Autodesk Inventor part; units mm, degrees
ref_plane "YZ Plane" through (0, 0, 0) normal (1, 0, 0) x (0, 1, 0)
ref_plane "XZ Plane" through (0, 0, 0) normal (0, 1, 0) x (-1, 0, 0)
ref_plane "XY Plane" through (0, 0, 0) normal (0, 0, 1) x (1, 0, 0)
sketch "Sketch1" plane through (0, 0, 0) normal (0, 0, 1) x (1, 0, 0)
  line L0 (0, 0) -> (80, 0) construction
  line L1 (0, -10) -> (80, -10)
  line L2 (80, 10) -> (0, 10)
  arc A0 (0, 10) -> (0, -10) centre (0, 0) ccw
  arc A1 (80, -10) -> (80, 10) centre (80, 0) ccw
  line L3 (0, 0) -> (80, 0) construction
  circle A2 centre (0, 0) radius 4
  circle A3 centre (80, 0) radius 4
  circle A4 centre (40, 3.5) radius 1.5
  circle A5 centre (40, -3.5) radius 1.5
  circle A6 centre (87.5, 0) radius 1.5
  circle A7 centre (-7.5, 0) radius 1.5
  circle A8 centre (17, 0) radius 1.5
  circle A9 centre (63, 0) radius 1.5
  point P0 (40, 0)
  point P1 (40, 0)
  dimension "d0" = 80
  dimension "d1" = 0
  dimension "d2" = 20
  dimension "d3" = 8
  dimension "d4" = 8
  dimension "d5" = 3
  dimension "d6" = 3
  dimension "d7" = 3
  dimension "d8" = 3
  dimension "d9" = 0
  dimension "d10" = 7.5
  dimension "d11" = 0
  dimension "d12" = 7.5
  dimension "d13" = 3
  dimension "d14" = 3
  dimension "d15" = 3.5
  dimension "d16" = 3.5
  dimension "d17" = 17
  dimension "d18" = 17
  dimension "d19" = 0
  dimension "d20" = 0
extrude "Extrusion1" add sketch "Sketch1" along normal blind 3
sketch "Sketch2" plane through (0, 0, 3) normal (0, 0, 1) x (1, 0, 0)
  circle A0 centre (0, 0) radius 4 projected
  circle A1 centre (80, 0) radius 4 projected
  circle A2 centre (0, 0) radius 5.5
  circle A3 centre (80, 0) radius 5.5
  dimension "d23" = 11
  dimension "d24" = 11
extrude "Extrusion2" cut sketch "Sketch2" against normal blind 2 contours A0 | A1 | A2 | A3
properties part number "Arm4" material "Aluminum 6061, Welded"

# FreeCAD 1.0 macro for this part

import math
import FreeCAD as App
import Part
import Sketcher

V = App.Vector
Q = App.Units.Quantity

doc = App.newDocument("Part")
body = doc.addObject("PartDesign::Body", "Body")

sketch1 = doc.addObject("Sketcher::SketchObject", "Sketch")
body.addObject(sketch1)
sketch1.AttachmentSupport = (doc.XY_Plane, [""])
sketch1.MapMode = "FlatFace"
sketch1.addGeometry([
    Part.ArcOfCircle(Part.Circle(V(0, 0, 0), V(0, 0, 1), 10), math.radians(90), math.radians(270)),
    Part.LineSegment(V(0, -10, 0), V(80, -10, 0)),
    Part.ArcOfCircle(Part.Circle(V(80, 0, 0), V(0, 0, 1), 10), math.radians(-90), math.radians(90)),
    Part.LineSegment(V(80, 10, 0), V(0, 10, 0)),
    Part.Circle(V(40, -3.5, 0), V(0, 0, 1), 1.5),
    Part.Circle(V(-7.5, 0, 0), V(0, 0, 1), 1.5),
    Part.Circle(V(0, 0, 0), V(0, 0, 1), 4),
    Part.Circle(V(17, 0, 0), V(0, 0, 1), 1.5),
    Part.Circle(V(63, 0, 0), V(0, 0, 1), 1.5),
    Part.Circle(V(40, 3.5, 0), V(0, 0, 1), 1.5),
    Part.Circle(V(80, 0, 0), V(0, 0, 1), 4),
    Part.Circle(V(87.5, 0, 0), V(0, 0, 1), 1.5),
], False)
sketch1.addConstraint([
    Sketcher.Constraint("Tangent", 0, 2, 1, 1),
    Sketcher.Constraint("Tangent", 1, 2, 2, 1),
    Sketcher.Constraint("Tangent", 2, 2, 3, 1),
    Sketcher.Constraint("Tangent", 3, 2, 0, 1),
    Sketcher.Constraint("Horizontal", 1),
    Sketcher.Constraint("Horizontal", 3),
    Sketcher.Constraint("Coincident", 0, 3, -1, 1),
    Sketcher.Constraint("Coincident", 6, 3, -1, 1),
    Sketcher.Constraint("Coincident", 10, 3, 2, 3),
    Sketcher.Constraint("Equal", 4, 5),
    Sketcher.Constraint("Equal", 5, 7),
    Sketcher.Constraint("Equal", 7, 8),
    Sketcher.Constraint("Equal", 8, 9),
    Sketcher.Constraint("Equal", 6, 10),
    Sketcher.Constraint("Equal", 9, 11),
    Sketcher.Constraint("Symmetric", 4, 3, 9, 3, -1),
    Sketcher.Constraint("PointOnObject", 5, 3, -1),
    Sketcher.Constraint("PointOnObject", 7, 3, -1),
    Sketcher.Constraint("PointOnObject", 8, 3, -1),
    Sketcher.Constraint("PointOnObject", 11, 3, -1),
    Sketcher.Constraint("Diameter", 4, Q("3 mm")),
    Sketcher.Constraint("Diameter", 6, Q("8 mm")),
    Sketcher.Constraint("Radius", 0, Q("10 mm")),
    Sketcher.Constraint("DistanceX", 1, 1, 1, 2, Q("80 mm")),
    Sketcher.Constraint("DistanceX", -1, 1, 7, 3, Q("17 mm")),
    Sketcher.Constraint("DistanceX", 8, 3, 2, 3, Q("17 mm")),
    Sketcher.Constraint("DistanceY", 4, 3, -1, 1, Q("3.5 mm")),
    Sketcher.Constraint("DistanceX", 5, 3, -1, 1, Q("7.5 mm")),
    Sketcher.Constraint("DistanceX", 2, 3, 11, 3, Q("7.5 mm")),
    Sketcher.Constraint("DistanceX", -1, 1, 4, 3, Q("40 mm")),
])
pad1 = doc.addObject("PartDesign::Pad", "Pad")
body.addObject(pad1)
pad1.Profile = sketch1
pad1.Length = 3

sketch2 = doc.addObject("Sketcher::SketchObject", "Sketch001")
body.addObject(sketch2)
sketch2.AttachmentSupport = (doc.XY_Plane, [""])
sketch2.MapMode = "FlatFace"
sketch2.AttachmentOffset = App.Placement(V(0, 0, 3), App.Rotation())
sketch2.addGeometry([
    Part.Circle(V(0, 0, 0), V(0, 0, 1), 6),
    Part.Circle(V(80, 0, 0), V(0, 0, 1), 6),
], False)
sketch2.addConstraint([
    Sketcher.Constraint("Coincident", 0, 3, -1, 1),
    Sketcher.Constraint("Equal", 0, 1),
    Sketcher.Constraint("PointOnObject", 1, 3, -1),
    Sketcher.Constraint("Diameter", 0, Q("11 mm")),
    Sketcher.Constraint("DistanceX", -1, 1, 1, 3, Q("80 mm")),
])
pocket1 = doc.addObject("PartDesign::Pocket", "Pocket")
body.addObject(pocket1)
pocket1.Profile = sketch2
pocket1.Length = 2

doc.recompute()
